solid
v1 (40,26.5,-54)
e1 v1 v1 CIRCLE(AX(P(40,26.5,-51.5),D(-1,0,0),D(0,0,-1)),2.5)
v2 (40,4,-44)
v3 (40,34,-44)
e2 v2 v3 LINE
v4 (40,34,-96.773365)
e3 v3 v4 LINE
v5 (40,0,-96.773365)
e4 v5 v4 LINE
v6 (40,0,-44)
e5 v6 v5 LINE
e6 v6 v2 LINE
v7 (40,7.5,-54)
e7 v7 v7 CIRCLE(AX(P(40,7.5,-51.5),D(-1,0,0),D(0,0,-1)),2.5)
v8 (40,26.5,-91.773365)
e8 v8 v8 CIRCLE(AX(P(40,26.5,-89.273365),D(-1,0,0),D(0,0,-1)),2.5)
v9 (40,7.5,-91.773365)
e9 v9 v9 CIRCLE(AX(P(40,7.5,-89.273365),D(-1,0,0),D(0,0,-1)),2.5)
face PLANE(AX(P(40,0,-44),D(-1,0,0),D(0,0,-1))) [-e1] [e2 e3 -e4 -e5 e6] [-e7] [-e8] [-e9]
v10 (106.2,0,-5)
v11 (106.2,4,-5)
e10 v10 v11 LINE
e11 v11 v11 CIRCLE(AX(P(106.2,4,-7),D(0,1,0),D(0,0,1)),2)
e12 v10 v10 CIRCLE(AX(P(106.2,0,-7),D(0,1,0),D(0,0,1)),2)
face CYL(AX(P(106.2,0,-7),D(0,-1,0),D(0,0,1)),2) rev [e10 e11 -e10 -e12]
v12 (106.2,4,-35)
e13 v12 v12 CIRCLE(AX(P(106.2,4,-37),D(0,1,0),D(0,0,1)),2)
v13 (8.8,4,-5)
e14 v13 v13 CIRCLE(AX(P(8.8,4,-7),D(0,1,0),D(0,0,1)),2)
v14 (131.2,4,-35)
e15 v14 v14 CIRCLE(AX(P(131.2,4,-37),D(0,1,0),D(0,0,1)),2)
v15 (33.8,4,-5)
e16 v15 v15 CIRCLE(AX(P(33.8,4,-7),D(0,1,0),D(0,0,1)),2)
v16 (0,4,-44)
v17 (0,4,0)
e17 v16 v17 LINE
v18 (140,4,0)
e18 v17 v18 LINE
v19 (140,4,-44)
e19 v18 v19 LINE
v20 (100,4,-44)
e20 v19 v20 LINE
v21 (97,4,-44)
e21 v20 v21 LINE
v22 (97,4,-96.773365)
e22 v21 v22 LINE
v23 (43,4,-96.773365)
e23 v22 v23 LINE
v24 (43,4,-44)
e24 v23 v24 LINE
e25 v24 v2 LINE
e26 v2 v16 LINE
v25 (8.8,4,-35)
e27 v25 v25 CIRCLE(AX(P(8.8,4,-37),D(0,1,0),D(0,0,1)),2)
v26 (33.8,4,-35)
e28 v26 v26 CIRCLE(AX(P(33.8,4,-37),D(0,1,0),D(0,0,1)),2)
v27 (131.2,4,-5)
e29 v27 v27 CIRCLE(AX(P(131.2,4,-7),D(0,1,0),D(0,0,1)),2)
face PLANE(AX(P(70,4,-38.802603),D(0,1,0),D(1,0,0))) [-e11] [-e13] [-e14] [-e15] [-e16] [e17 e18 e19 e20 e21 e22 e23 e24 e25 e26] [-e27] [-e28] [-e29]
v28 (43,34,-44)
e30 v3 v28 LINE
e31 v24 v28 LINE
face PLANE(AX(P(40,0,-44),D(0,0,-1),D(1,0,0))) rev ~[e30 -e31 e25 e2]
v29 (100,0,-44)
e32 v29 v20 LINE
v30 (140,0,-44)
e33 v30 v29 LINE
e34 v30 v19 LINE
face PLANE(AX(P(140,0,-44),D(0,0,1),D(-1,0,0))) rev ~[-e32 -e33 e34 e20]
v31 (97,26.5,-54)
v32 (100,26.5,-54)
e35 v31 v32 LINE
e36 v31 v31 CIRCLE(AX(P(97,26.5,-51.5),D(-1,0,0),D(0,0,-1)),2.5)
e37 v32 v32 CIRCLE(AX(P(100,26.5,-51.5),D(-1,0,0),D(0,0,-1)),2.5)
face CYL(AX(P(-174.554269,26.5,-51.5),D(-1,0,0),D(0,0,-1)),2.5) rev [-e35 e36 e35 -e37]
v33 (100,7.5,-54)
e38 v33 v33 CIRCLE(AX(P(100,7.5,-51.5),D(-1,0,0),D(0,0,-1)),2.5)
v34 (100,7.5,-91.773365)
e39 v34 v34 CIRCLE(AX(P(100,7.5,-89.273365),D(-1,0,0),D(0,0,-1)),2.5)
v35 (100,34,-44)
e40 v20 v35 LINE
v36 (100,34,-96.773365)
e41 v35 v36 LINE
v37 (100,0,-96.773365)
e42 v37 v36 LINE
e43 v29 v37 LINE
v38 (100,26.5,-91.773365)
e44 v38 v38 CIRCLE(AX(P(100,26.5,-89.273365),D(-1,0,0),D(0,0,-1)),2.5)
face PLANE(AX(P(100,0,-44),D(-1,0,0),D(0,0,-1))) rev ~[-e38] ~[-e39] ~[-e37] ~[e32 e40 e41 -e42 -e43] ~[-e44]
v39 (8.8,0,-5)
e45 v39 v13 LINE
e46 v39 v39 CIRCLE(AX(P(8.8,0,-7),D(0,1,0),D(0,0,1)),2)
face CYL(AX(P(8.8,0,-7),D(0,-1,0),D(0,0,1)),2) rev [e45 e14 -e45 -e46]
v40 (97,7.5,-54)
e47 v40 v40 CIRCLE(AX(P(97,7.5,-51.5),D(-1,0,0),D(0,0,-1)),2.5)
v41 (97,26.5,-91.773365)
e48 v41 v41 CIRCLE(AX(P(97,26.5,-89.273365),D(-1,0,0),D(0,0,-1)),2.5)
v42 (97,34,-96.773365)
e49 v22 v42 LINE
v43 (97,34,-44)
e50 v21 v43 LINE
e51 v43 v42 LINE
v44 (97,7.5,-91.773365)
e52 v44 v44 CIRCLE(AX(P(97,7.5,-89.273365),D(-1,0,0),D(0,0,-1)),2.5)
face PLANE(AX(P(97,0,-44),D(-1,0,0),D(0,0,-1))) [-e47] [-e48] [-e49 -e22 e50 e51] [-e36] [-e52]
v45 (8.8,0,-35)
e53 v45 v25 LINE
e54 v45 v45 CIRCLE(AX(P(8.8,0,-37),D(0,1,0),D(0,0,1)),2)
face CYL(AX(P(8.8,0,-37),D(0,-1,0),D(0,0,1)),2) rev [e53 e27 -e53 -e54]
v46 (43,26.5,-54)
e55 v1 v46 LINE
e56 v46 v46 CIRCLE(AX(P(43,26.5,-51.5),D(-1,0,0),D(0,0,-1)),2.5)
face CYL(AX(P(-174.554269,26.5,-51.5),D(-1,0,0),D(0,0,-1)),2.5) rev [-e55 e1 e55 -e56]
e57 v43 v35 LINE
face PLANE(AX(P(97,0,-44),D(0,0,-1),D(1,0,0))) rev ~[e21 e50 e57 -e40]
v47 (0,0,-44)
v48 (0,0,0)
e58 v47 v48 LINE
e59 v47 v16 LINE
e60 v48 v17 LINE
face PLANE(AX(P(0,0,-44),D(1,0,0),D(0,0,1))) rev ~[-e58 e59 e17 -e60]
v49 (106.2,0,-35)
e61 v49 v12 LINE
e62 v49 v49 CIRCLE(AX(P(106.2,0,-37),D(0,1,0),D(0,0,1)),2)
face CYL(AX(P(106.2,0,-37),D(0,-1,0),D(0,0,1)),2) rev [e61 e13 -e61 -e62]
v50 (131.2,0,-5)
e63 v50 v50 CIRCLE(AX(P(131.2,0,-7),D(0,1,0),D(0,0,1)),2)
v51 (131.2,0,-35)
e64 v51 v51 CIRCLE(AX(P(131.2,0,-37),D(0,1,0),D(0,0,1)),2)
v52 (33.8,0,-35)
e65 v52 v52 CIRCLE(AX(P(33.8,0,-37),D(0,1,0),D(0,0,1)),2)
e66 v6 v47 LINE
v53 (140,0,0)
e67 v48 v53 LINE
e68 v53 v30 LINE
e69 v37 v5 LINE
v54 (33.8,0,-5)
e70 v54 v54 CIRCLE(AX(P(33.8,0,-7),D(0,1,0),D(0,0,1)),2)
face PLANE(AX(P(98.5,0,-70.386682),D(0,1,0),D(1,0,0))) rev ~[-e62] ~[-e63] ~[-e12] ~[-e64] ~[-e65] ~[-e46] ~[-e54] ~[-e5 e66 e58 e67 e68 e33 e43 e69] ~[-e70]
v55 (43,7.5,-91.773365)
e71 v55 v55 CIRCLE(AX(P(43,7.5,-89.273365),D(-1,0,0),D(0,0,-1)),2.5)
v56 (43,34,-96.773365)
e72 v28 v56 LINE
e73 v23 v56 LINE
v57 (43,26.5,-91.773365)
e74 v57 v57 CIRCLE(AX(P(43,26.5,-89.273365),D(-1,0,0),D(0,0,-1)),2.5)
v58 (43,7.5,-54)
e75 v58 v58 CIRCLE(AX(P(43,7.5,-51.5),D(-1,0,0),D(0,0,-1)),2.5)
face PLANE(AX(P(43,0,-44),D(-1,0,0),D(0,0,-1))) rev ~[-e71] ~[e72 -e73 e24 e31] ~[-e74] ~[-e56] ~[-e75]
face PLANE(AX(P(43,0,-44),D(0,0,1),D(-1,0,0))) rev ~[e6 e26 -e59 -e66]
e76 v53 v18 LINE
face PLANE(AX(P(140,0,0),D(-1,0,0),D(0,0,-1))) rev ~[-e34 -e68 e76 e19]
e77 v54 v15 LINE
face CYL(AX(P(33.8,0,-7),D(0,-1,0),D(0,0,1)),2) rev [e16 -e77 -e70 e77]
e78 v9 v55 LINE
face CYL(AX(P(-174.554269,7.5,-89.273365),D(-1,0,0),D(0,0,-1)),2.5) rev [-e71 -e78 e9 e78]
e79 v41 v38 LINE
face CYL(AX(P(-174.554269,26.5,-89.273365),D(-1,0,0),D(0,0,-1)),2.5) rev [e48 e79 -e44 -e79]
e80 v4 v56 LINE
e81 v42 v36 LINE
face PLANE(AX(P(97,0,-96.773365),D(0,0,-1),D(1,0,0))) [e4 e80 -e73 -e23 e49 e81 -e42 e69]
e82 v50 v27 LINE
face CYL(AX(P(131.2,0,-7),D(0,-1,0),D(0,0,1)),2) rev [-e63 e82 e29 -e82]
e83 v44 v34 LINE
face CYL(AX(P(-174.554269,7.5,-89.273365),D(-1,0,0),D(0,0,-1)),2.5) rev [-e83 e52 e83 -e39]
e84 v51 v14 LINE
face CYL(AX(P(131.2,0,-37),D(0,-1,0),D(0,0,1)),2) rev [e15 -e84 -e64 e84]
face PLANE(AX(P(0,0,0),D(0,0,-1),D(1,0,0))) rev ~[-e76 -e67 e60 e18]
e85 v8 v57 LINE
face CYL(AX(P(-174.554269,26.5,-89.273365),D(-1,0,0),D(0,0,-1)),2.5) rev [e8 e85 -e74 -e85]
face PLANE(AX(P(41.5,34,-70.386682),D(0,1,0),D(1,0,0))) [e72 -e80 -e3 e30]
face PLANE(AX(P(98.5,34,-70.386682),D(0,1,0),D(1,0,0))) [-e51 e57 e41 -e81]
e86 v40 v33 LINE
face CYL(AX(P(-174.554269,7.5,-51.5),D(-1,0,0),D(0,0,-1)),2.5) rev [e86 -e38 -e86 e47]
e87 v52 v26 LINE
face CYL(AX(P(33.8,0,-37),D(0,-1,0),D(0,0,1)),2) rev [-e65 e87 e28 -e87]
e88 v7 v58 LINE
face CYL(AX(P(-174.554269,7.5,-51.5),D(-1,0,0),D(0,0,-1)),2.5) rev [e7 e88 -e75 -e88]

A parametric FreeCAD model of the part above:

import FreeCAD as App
import Part
import Sketcher


def add_polygon(sketch, points):
    """Adds a closed chain of lines whose ends are joined by coincident constraints."""
    first, n = sketch.GeometryCount, len(points)
    for a, b in zip(points, points[1:] + points[:1]):
        sketch.addGeometry(Part.LineSegment(App.Vector(*a, 0), App.Vector(*b, 0)), False)
    for i in range(n):
        sketch.addConstraint(Sketcher.Constraint("Coincident", first + i, 2, first + (i + 1) % n, 1))

doc = App.newDocument("Part")
body = doc.addObject("PartDesign::Body", "Body")

sketch1 = body.newObject("Sketcher::SketchObject", "Sketch")
sketch1.AttachmentSupport = (doc.getObject("XZ_Plane"), [""])
sketch1.MapMode = "FlatFace"
add_polygon(sketch1, [(0, 0), (140, 0), (140, -44), (97, -44), (97, -96.8), (43, -96.8), (43, -44), (0, -44)])
sketch1.addGeometry(Part.Circle(App.Vector(8.8, -7, 0), App.Vector(0, 0, 1), 2), False)
sketch1.addGeometry(Part.Circle(App.Vector(33.8, -7, 0), App.Vector(0, 0, 1), 2), False)
sketch1.addGeometry(Part.Circle(App.Vector(106.2, -7, 0), App.Vector(0, 0, 1), 2), False)
sketch1.addGeometry(Part.Circle(App.Vector(131.2, -7, 0), App.Vector(0, 0, 1), 2), False)
sketch1.addGeometry(Part.Circle(App.Vector(8.8, -37, 0), App.Vector(0, 0, 1), 2), False)
sketch1.addGeometry(Part.Circle(App.Vector(33.8, -37, 0), App.Vector(0, 0, 1), 2), False)
sketch1.addGeometry(Part.Circle(App.Vector(106.2, -37, 0), App.Vector(0, 0, 1), 2), False)
sketch1.addGeometry(Part.Circle(App.Vector(131.2, -37, 0), App.Vector(0, 0, 1), 2), False)
sketch1.addConstraint([
    Sketcher.Constraint("Horizontal", 0),
    Sketcher.Constraint("Vertical", 1),
    Sketcher.Constraint("Horizontal", 2),
    Sketcher.Constraint("Vertical", 3),
    Sketcher.Constraint("Horizontal", 4),
    Sketcher.Constraint("Vertical", 5),
    Sketcher.Constraint("Horizontal", 6),
    Sketcher.Constraint("Vertical", 7),
    Sketcher.Constraint("Coincident", 7, 2, -1, 1),
    Sketcher.Constraint("Equal", 8, 9),
    Sketcher.Constraint("Equal", 9, 10),
    Sketcher.Constraint("Equal", 10, 11),
    Sketcher.Constraint("Equal", 11, 12),
    Sketcher.Constraint("Equal", 12, 13),
    Sketcher.Constraint("Equal", 13, 14),
    Sketcher.Constraint("Equal", 14, 15),
    Sketcher.Constraint("Horizontal", 8, 3, 9, 3),
    Sketcher.Constraint("Horizontal", 9, 3, 10, 3),
    Sketcher.Constraint("Horizontal", 10, 3, 11, 3),
    Sketcher.Constraint("Horizontal", 12, 3, 13, 3),
    Sketcher.Constraint("Horizontal", 13, 3, 14, 3),
    Sketcher.Constraint("Horizontal", 14, 3, 15, 3),
    Sketcher.Constraint("Horizontal", 2, 2, 5, 2),
    Sketcher.Constraint("Vertical", 8, 3, 12, 3),
    Sketcher.Constraint("Vertical", 9, 3, 13, 3),
    Sketcher.Constraint("Vertical", 10, 3, 14, 3),
    Sketcher.Constraint("Vertical", 11, 3, 15, 3),
    Sketcher.Constraint("Equal", 2, 6),
    Sketcher.Constraint("Diameter", 8, 4.0),
    Sketcher.Constraint("DistanceX", 0, 1, 0, 2, 140.0),
    Sketcher.Constraint("DistanceX", 2, 2, 2, 1, 43.0),
    Sketcher.Constraint("DistanceY", 1, 2, 1, 1, 44.0),
    Sketcher.Constraint("DistanceY", 8, 3, -1, 1, 7.0),
    Sketcher.Constraint("DistanceY", 12, 3, -1, 1, 37.0),
    Sketcher.Constraint("DistanceX", 8, 3, 9, 3, 25.0),
    Sketcher.Constraint("DistanceX", 10, 3, 11, 3, 25.0),
    Sketcher.Constraint("DistanceX", -1, 1, 8, 3, 8.8),
    Sketcher.Constraint("DistanceX", -1, 1, 10, 3, 106.2),
    Sketcher.Constraint("DistanceY", 3, 2, 3, 1, 52.773365),
])
pad1 = body.newObject("PartDesign::Pad", "Pad")
pad1.Profile = sketch1
pad1.Length = 4
pad1.Reversed = True

sketch2 = body.newObject("Sketcher::SketchObject", "Sketch001")
sketch2.AttachmentSupport = (doc.getObject("XZ_Plane"), [""])
sketch2.MapMode = "FlatFace"
add_polygon(sketch2, [(97, -96.8), (97, -44), (100, -44), (100, -96.8)])
add_polygon(sketch2, [(40, -96.8), (40, -44), (43, -44), (43, -96.8)])
sketch2.addConstraint([
    Sketcher.Constraint("Vertical", 0),
    Sketcher.Constraint("Horizontal", 1),
    Sketcher.Constraint("Vertical", 2),
    Sketcher.Constraint("Horizontal", 3),
    Sketcher.Constraint("Vertical", 4),
    Sketcher.Constraint("Horizontal", 5),
    Sketcher.Constraint("Vertical", 6),
    Sketcher.Constraint("Horizontal", 7),
    Sketcher.Constraint("Horizontal", 1, 2, 4, 2),
    Sketcher.Constraint("Horizontal", 3, 2, 6, 2),
    Sketcher.Constraint("Equal", 3, 5),
    Sketcher.Constraint("DistanceX", 1, 1, 1, 2, 3.0),
    Sketcher.Constraint("DistanceX", -1, 1, 0, 2, 97.0),
    Sketcher.Constraint("DistanceY", 0, 2, -1, 1, 44.0),
    Sketcher.Constraint("DistanceX", -1, 1, 4, 2, 40.0),
    Sketcher.Constraint("DistanceY", 0, 1, 0, 2, 52.773365),
])
pad2 = body.newObject("PartDesign::Pad", "Pad001")
pad2.Profile = sketch2
pad2.Length = 34
pad2.Reversed = True

sketch3 = body.newObject("Sketcher::SketchObject", "Sketch002")
sketch3.AttachmentSupport = (doc.getObject("YZ_Plane"), [""])
sketch3.MapMode = "FlatFace"
sketch3.addGeometry([
    Part.Circle(App.Vector(7.5, -51.5, 0), App.Vector(0, 0, 1), 2.5),
    Part.Circle(App.Vector(7.5, -89.3, 0), App.Vector(0, 0, 1), 2.5),
    Part.Circle(App.Vector(26.5, -89.3, 0), App.Vector(0, 0, 1), 2.5),
    Part.Circle(App.Vector(26.5, -51.5, 0), App.Vector(0, 0, 1), 2.5),
], False)
sketch3.addConstraint([
    Sketcher.Constraint("Equal", 0, 1),
    Sketcher.Constraint("Equal", 1, 2),
    Sketcher.Constraint("Equal", 2, 3),
    Sketcher.Constraint("Horizontal", 1, 3, 2, 3),
    Sketcher.Constraint("Horizontal", 0, 3, 3, 3),
    Sketcher.Constraint("Vertical", 0, 3, 1, 3),
    Sketcher.Constraint("Vertical", 2, 3, 3, 3),
    Sketcher.Constraint("Diameter", 0, 5.0),
    Sketcher.Constraint("DistanceX", 1, 3, 2, 3, 19.0),
    Sketcher.Constraint("DistanceX", -1, 1, 0, 3, 7.5),
    Sketcher.Constraint("DistanceY", 0, 3, -1, 1, 51.5),
    Sketcher.Constraint("DistanceY", 1, 3, -1, 1, 89.273365),
])
pocket1 = body.newObject("PartDesign::Pocket", "Pocket")
pocket1.Profile = sketch3
pocket1.Type = "ThroughAll"
pocket1.Midplane = True

doc.recompute()
